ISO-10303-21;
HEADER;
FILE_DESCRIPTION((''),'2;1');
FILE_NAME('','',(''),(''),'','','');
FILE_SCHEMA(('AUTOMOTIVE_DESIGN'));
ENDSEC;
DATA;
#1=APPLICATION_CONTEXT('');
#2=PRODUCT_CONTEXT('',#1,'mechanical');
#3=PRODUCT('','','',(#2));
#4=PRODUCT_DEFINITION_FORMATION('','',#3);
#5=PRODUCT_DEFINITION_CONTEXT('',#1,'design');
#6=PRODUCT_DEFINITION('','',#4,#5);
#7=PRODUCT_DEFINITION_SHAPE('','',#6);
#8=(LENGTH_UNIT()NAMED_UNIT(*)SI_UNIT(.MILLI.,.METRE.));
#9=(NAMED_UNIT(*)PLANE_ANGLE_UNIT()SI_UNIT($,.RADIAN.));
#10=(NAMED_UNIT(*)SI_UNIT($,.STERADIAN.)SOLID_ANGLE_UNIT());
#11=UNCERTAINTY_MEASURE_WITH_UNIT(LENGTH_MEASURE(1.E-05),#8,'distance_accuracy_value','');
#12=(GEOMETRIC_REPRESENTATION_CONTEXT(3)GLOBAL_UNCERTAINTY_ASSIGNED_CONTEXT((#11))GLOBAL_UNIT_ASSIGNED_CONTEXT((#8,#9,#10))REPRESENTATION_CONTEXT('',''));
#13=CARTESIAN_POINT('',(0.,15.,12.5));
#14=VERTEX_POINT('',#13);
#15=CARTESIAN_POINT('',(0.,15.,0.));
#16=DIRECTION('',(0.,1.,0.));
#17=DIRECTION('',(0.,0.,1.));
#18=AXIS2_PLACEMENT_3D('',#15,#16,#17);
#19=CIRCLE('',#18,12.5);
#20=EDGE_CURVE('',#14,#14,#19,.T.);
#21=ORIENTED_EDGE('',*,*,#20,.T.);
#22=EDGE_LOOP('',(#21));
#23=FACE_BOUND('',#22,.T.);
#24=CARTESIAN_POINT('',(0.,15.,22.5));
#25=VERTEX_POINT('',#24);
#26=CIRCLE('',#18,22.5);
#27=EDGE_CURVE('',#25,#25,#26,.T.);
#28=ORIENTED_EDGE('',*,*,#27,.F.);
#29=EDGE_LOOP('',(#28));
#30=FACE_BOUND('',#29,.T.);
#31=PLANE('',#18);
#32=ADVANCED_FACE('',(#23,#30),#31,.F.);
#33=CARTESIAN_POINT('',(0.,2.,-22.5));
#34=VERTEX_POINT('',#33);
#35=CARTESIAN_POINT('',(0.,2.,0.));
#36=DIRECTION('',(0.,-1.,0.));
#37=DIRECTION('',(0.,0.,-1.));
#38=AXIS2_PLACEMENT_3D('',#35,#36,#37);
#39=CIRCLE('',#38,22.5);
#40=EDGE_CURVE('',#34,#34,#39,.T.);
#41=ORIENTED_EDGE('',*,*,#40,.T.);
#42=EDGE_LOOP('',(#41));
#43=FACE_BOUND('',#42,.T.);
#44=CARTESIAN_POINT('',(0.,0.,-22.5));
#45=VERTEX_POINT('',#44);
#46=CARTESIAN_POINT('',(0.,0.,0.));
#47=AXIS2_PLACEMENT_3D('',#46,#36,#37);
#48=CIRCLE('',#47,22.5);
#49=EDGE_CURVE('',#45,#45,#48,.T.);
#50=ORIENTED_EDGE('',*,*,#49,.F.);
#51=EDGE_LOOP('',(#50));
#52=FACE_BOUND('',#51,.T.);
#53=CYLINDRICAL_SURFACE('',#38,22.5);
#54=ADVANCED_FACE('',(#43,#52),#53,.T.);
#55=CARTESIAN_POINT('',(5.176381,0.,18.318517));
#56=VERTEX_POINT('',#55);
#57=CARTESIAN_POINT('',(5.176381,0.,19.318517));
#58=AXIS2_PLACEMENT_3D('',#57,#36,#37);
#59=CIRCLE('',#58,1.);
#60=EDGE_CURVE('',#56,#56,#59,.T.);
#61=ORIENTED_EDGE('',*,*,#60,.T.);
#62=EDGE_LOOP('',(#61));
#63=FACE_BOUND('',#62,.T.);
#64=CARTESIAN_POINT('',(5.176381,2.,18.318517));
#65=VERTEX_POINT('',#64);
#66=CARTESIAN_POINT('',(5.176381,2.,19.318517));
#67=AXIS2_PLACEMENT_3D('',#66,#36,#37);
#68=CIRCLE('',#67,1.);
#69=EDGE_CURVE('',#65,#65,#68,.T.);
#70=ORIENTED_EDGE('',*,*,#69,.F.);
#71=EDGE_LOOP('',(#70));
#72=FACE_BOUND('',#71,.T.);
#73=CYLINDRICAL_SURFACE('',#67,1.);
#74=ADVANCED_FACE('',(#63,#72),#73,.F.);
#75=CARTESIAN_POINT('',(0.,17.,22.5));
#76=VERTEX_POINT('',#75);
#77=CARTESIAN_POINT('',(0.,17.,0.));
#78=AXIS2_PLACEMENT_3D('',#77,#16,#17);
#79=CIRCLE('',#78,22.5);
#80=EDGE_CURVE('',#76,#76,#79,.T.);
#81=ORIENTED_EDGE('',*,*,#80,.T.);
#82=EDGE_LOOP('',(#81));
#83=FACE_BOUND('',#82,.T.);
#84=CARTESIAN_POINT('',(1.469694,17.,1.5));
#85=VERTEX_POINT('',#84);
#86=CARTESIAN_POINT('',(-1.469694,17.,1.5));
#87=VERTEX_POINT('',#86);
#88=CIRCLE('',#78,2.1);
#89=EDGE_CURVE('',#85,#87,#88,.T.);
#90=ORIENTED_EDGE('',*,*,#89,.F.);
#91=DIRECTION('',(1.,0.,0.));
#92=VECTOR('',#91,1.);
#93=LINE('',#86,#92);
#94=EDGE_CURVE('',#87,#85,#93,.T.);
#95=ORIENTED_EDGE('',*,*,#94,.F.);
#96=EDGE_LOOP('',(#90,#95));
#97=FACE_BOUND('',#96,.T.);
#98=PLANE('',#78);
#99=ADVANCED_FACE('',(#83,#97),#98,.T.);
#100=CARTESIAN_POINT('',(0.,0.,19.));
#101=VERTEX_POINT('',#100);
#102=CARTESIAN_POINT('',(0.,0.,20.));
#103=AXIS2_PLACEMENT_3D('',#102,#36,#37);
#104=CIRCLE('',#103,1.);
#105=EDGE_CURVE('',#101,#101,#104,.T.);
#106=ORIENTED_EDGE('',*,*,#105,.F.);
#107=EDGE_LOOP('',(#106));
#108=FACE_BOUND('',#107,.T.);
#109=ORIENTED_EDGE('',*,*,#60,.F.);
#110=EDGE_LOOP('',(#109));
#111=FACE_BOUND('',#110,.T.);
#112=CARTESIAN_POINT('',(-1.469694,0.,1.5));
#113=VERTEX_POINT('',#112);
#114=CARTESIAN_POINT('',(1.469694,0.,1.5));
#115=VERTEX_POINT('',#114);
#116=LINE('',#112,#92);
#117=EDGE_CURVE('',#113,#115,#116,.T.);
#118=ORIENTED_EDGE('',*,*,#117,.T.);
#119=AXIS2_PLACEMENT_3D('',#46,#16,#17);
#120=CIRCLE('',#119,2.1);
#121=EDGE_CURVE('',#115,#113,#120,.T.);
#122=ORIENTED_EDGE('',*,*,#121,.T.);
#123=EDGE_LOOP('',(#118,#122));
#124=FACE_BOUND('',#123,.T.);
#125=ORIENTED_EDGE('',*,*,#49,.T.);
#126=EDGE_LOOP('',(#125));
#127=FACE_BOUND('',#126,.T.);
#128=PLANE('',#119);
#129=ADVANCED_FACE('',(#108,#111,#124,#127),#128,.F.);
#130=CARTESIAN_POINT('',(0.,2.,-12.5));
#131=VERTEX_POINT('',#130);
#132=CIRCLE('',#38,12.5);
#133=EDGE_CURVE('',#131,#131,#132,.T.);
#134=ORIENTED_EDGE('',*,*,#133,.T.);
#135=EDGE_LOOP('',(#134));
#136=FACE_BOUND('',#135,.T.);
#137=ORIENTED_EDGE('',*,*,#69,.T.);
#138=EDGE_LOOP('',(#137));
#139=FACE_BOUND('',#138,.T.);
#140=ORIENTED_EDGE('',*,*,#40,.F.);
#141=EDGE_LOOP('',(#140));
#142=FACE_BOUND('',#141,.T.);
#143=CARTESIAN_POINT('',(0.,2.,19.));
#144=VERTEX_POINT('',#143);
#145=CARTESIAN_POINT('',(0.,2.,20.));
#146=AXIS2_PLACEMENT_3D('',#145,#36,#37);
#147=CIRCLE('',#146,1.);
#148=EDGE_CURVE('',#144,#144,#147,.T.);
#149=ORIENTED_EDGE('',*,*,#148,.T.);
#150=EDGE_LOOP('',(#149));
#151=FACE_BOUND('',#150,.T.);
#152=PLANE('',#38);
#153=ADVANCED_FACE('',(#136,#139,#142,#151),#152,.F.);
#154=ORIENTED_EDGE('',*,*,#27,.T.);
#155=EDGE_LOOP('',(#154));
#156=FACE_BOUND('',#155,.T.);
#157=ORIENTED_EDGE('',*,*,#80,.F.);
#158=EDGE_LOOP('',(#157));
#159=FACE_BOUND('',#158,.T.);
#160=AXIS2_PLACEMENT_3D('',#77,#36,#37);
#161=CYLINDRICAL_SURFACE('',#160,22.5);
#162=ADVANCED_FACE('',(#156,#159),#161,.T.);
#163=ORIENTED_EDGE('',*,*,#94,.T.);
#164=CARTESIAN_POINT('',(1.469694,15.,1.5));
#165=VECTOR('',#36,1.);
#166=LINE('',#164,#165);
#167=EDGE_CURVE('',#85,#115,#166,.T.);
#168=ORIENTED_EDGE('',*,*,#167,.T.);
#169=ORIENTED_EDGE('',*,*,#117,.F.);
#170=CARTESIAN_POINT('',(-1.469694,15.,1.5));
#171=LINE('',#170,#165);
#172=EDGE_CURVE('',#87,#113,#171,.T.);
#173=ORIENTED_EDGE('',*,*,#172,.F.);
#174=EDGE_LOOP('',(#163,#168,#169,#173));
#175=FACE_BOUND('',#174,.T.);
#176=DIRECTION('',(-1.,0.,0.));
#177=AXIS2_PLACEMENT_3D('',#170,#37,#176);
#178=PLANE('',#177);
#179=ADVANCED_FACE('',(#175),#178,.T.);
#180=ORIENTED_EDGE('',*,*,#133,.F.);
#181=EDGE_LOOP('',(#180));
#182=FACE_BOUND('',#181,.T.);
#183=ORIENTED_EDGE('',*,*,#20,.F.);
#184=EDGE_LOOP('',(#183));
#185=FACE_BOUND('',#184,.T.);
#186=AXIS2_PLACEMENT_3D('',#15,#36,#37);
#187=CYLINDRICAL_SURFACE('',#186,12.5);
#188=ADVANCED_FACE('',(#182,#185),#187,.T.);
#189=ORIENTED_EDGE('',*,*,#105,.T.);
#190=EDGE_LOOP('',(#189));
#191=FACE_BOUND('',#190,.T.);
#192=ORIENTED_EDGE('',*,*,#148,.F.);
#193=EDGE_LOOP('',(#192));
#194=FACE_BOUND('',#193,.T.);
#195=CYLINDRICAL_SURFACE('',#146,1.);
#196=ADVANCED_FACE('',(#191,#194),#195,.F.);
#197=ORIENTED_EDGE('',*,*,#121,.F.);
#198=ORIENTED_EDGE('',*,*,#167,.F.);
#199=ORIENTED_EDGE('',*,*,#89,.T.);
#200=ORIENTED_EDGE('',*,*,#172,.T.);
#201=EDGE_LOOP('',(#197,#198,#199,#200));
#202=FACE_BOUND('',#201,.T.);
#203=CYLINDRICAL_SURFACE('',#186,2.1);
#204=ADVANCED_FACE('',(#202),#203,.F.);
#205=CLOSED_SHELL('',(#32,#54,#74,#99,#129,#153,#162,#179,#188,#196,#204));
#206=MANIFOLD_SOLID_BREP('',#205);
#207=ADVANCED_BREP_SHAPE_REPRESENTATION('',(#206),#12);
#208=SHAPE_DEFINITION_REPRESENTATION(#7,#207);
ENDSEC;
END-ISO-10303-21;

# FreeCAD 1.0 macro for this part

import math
import FreeCAD as App
import Part
import Sketcher
from FreeCAD import Vector

doc = App.newDocument("Part")
body = doc.addObject("PartDesign::Body", "Body")

sketch1 = doc.addObject("Sketcher::SketchObject", "Sketch")
body.addObject(sketch1)
sketch1.AttachmentSupport = (doc.XZ_Plane, [""])
sketch1.MapMode = "FlatFace"
sketch1.addGeometry([
    Part.Circle(Vector(0, 0, 0), Vector(0, 0, 1), 12.5),
    Part.LineSegment(Vector(1.5, 1.5, 0), Vector(-1.5, 1.5, 0)),
    Part.ArcOfCircle(Part.Circle(Vector(0, 0, 0), Vector(0, 0, 1), 2.1), math.radians(134), math.radians(406)),
], False)
sketch1.addConstraint([
    Sketcher.Constraint("Coincident", 1, 1, 2, 2),
    Sketcher.Constraint("Coincident", 2, 1, 1, 2),
    Sketcher.Constraint("Horizontal", 1),
    Sketcher.Constraint("Coincident", 0, 3, -1, 1),
    Sketcher.Constraint("Coincident", 2, 3, -1, 1),
    Sketcher.Constraint("Diameter", 0, 25.0),
    Sketcher.Constraint("Radius", 2, 2.1),
    Sketcher.Constraint("DistanceY", -1, 1, 1, 1, 1.5),
])
pad1 = doc.addObject("PartDesign::Pad", "Pad")
body.addObject(pad1)
pad1.Profile = sketch1
pad1.Length = 15
pad1.Reversed = True

sketch2 = doc.addObject("Sketcher::SketchObject", "Sketch001")
body.addObject(sketch2)
sketch2.AttachmentSupport = (doc.XZ_Plane, [""])
sketch2.MapMode = "FlatFace"
sketch2.addGeometry([
    Part.Circle(Vector(0, 0, 0), Vector(0, 0, 1), 22.5),
    Part.Circle(Vector(0, 20, 0), Vector(0, 0, 1), 1),
    Part.ArcOfCircle(Part.Circle(Vector(0, 0, 0), Vector(0, 0, 1), 2.1), math.radians(134), math.radians(406)),
    Part.LineSegment(Vector(-1.5, 1.5, 0), Vector(1.5, 1.5, 0)),
    Part.Circle(Vector(5.2, 19.3, 0), Vector(0, 0, 1), 1),
], False)
sketch2.addConstraint([
    Sketcher.Constraint("Coincident", 2, 1, 3, 1),
    Sketcher.Constraint("Coincident", 3, 2, 2, 2),
    Sketcher.Constraint("Horizontal", 3),
    Sketcher.Constraint("Coincident", 0, 3, -1, 1),
    Sketcher.Constraint("Coincident", 2, 3, -1, 1),
    Sketcher.Constraint("Equal", 1, 4),
    Sketcher.Constraint("PointOnObject", 1, 3, -2),
    Sketcher.Constraint("Diameter", 0, 45.0),
    Sketcher.Constraint("Diameter", 1, 2.0),
    Sketcher.Constraint("Radius", 2, 2.1),
    Sketcher.Constraint("DistanceY", -1, 1, 1, 3, 20.0),
    Sketcher.Constraint("DistanceY", -1, 1, 2, 1, 1.5),
    Sketcher.Constraint("DistanceX", -1, 1, 4, 3, 5.176381),
    Sketcher.Constraint("DistanceY", -1, 1, 4, 3, 19.318517),
])
pad2 = doc.addObject("PartDesign::Pad", "Pad001")
body.addObject(pad2)
pad2.Profile = sketch2
pad2.Length = 2
pad2.Reversed = True

sketch3 = doc.addObject("Sketcher::SketchObject", "Sketch002")
body.addObject(sketch3)
sketch3.AttachmentSupport = (doc.XZ_Plane, [""])
sketch3.MapMode = "FlatFace"
sketch3.AttachmentOffset = App.Placement(Vector(0, 0, -15), App.Rotation())
sketch3.addGeometry([
    Part.Circle(Vector(0, 0, 0), Vector(0, 0, 1), 22.5),
    Part.LineSegment(Vector(1.5, 1.5, 0), Vector(-1.5, 1.5, 0)),
    Part.ArcOfCircle(Part.Circle(Vector(0, 0, 0), Vector(0, 0, 1), 2.1), math.radians(134), math.radians(406)),
], False)
sketch3.addConstraint([
    Sketcher.Constraint("Coincident", 1, 1, 2, 2),
    Sketcher.Constraint("Coincident", 2, 1, 1, 2),
    Sketcher.Constraint("Horizontal", 1),
    Sketcher.Constraint("Coincident", 0, 3, -1, 1),
    Sketcher.Constraint("Coincident", 2, 3, -1, 1),
    Sketcher.Constraint("Diameter", 0, 45.0),
    Sketcher.Constraint("Radius", 2, 2.1),
    Sketcher.Constraint("DistanceY", -1, 1, 1, 1, 1.5),
])
pad3 = doc.addObject("PartDesign::Pad", "Pad002")
body.addObject(pad3)
pad3.Profile = sketch3
pad3.Length = 2
pad3.Reversed = True

doc.recompute()
